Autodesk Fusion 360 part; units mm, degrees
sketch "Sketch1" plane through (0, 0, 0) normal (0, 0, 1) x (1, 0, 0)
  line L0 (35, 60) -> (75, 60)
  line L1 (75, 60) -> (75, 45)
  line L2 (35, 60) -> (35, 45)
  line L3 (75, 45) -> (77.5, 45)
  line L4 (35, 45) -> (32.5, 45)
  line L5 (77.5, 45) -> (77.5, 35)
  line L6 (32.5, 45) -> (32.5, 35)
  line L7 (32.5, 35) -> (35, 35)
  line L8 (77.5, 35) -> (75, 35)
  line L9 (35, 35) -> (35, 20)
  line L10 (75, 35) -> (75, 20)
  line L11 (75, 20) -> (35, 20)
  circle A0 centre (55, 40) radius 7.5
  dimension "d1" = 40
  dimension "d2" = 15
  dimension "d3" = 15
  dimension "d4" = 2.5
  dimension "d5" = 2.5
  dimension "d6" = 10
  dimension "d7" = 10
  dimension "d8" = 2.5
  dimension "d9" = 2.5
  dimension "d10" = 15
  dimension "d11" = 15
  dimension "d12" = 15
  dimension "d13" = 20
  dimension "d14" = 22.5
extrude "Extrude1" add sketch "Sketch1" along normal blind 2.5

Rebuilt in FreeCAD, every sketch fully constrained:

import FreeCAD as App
import Part
import Sketcher

doc = App.newDocument("Part")
body = doc.addObject("PartDesign::Body", "Body")

# Sketch on XY plane
sketch1 = body.newObject("Sketcher::SketchObject", "Sketch")
sketch1.AttachmentSupport = (doc.getObject("XY_Plane"), [""])
sketch1.MapMode = "FlatFace"
sketch1.addGeometry([
    Part.LineSegment(App.Vector(75, 60, 0), App.Vector(35, 60, 0)),  # 0
    Part.LineSegment(App.Vector(35, 60, 0), App.Vector(35, 45, 0)),  # 1
    Part.LineSegment(App.Vector(35, 45, 0), App.Vector(32.5, 45, 0)),  # 2
    Part.LineSegment(App.Vector(32.5, 45, 0), App.Vector(32.5, 35, 0)),  # 3
    Part.LineSegment(App.Vector(32.5, 35, 0), App.Vector(35, 35, 0)),  # 4
    Part.LineSegment(App.Vector(35, 35, 0), App.Vector(35, 20, 0)),  # 5
    Part.LineSegment(App.Vector(35, 20, 0), App.Vector(75, 20, 0)),  # 6
    Part.LineSegment(App.Vector(75, 20, 0), App.Vector(75, 35, 0)),  # 7
    Part.LineSegment(App.Vector(75, 35, 0), App.Vector(77.5, 35, 0)),  # 8
    Part.LineSegment(App.Vector(77.5, 35, 0), App.Vector(77.5, 45, 0)),  # 9
    Part.LineSegment(App.Vector(77.5, 45, 0), App.Vector(75, 45, 0)),  # 10
    Part.LineSegment(App.Vector(75, 45, 0), App.Vector(75, 60, 0)),  # 11
    Part.Circle(App.Vector(55, 40, 0), App.Vector(0, 0, 1), 7.5),  # 12
], False)
sketch1.addConstraint([
    Sketcher.Constraint("Coincident", 0, 2, 1, 1),
    Sketcher.Constraint("Coincident", 1, 2, 2, 1),
    Sketcher.Constraint("Coincident", 2, 2, 3, 1),
    Sketcher.Constraint("Coincident", 3, 2, 4, 1),
    Sketcher.Constraint("Coincident", 4, 2, 5, 1),
    Sketcher.Constraint("Coincident", 5, 2, 6, 1),
    Sketcher.Constraint("Coincident", 6, 2, 7, 1),
    Sketcher.Constraint("Coincident", 7, 2, 8, 1),
    Sketcher.Constraint("Coincident", 8, 2, 9, 1),
    Sketcher.Constraint("Coincident", 9, 2, 10, 1),
    Sketcher.Constraint("Coincident", 10, 2, 11, 1),
    Sketcher.Constraint("Coincident", 11, 2, 0, 1),
    Sketcher.Constraint("Horizontal", 0),
    Sketcher.Constraint("Vertical", 1),
    Sketcher.Constraint("Horizontal", 2),
    Sketcher.Constraint("Vertical", 3),
    Sketcher.Constraint("Horizontal", 4),
    Sketcher.Constraint("Vertical", 5),
    Sketcher.Constraint("Horizontal", 6),
    Sketcher.Constraint("Vertical", 7),
    Sketcher.Constraint("Horizontal", 8),
    Sketcher.Constraint("Vertical", 9),
    Sketcher.Constraint("Horizontal", 10),
    Sketcher.Constraint("Vertical", 11),
    Sketcher.Constraint("Horizontal", 4, 2, 7, 2),
    Sketcher.Constraint("Horizontal", 2, 2, 9, 2),
    Sketcher.Constraint("Vertical", 1, 2, 4, 2),
    Sketcher.Constraint("Vertical", 7, 2, 10, 2),
    Sketcher.Constraint("Equal", 4, 8),
    Sketcher.Constraint("Equal", 1, 5),
    Sketcher.Constraint("Diameter", 12, 15.0),
    Sketcher.Constraint("DistanceX", 0, 2, 0, 1, 40.0),
    Sketcher.Constraint("DistanceY", 1, 2, 1, 1, 15.0),
    Sketcher.Constraint("DistanceY", 3, 2, 3, 1, 10.0),
    Sketcher.Constraint("DistanceX", 2, 2, 2, 1, 2.5),
    Sketcher.Constraint("DistanceY", -1, 1, 12, 3, 40.0),
    Sketcher.Constraint("DistanceY", -1, 1, 5, 2, 20.0),
    Sketcher.Constraint("DistanceX", 0, 2, 12, 3, 20.0),
    Sketcher.Constraint("DistanceX", -1, 1, 12, 3, 55.0),
])
pad1 = body.newObject("PartDesign::Pad", "Pad")
pad1.Profile = sketch1
pad1.Length = 2.5

doc.recompute()
